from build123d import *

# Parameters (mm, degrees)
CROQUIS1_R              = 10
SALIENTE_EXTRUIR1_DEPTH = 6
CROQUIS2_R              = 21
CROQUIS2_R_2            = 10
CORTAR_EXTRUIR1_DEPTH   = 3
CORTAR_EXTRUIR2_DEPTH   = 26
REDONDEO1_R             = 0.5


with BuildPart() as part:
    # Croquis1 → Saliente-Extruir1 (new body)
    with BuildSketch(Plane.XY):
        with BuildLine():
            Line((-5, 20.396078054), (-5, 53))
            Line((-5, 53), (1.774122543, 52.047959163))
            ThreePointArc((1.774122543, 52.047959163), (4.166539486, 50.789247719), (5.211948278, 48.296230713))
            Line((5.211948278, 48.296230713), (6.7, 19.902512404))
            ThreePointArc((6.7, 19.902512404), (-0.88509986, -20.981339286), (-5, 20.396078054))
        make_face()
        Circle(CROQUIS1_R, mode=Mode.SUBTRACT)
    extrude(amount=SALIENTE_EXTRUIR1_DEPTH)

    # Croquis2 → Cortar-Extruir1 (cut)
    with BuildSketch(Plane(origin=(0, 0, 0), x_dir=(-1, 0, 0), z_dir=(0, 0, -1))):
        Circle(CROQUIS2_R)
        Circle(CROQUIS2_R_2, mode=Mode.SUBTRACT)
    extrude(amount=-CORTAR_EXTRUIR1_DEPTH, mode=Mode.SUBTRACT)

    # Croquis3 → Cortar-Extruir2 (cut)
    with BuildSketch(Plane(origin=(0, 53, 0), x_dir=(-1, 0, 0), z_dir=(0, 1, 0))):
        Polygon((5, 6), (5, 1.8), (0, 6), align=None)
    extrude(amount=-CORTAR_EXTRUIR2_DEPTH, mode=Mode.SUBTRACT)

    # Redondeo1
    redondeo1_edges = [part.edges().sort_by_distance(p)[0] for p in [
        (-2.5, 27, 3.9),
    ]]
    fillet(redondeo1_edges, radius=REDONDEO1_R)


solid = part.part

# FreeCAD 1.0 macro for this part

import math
import FreeCAD as App
import Part
import Sketcher

V = App.Vector
Q = App.Units.Quantity


def edges_at(feature, points):
    """Names of the edges that pass closest to the given points."""
    edges = feature.Shape.Edges
    near = lambda p: min(range(len(edges)), key=lambda i: edges[i].distToShape(Part.Vertex(*p))[0])
    return sorted({f"Edge{near(p) + 1}" for p in points})

doc = App.newDocument("Part")
params = doc.addObject("Spreadsheet::Sheet", "Params")
for row, (alias, value) in enumerate([
    ("sketch1_diameter", "20 mm"),
    ("sketch1_radius", "21 mm"),
    ("sketch1_radius2", "4 mm"),
    ("pad1_length", "6 mm"),
    ("sketch2_diameter", "42 mm"),
    ("sketch2_diameter2", "20 mm"),
    ("pocket1_length", "3 mm"),
    ("sketch3_width", "5 mm"),
    ("sketch3_height", "4.2 mm"),
    ("pocket2_length", "26 mm"),
    ("fillet_radius", "0.5 mm"),
], start=1):
    params.set(f"A{row}", alias)
    params.set(f"B{row}", "=" + value)
    params.setAlias(f"B{row}", alias)

body = doc.addObject("PartDesign::Body", "Body")

sketch1 = body.newObject("Sketcher::SketchObject", "Sketch")
sketch1.AttachmentSupport = (doc.getObject("XY_Plane"), [""])
sketch1.MapMode = "FlatFace"
sketch1.addGeometry([
    Part.LineSegment(V(-5, 53, 0), V(-5, 20.4, 0)),
    Part.ArcOfCircle(Part.Circle(V(0, 0, 0), V(0, 0, 1), 21), math.radians(104), math.radians(431)),
    Part.LineSegment(V(6.7, 19.9, 0), V(5.2, 48.3, 0)),
    Part.ArcOfCircle(Part.Circle(V(1.2, 48.1, 0), V(0, 0, 1), 4), math.radians(3), math.radians(82)),
    Part.LineSegment(V(1.8, 52, 0), V(-5, 53, 0)),
    Part.Circle(V(0, 0, 0), V(0, 0, 1), 10),
], False)
sketch1.addConstraint([
    Sketcher.Constraint("Coincident", 0, 2, 1, 1),
    Sketcher.Constraint("Coincident", 1, 2, 2, 1),
    Sketcher.Constraint("Tangent", 2, 2, 3, 1),
    Sketcher.Constraint("Tangent", 3, 2, 4, 1),
    Sketcher.Constraint("Coincident", 4, 2, 0, 1),
    Sketcher.Constraint("Vertical", 0),
    Sketcher.Constraint("Coincident", 1, 3, -1, 1),
    Sketcher.Constraint("Coincident", 5, 3, -1, 1),
    Sketcher.Constraint("Diameter", 5, Q("20 mm")),
    Sketcher.Constraint("Radius", 1, Q("21 mm")),
    Sketcher.Constraint("Radius", 3, Q("4 mm")),
    Sketcher.Constraint("Angle", 2, Q("93 deg")),
    Sketcher.Constraint("Angle", 4, Q("172 deg")),
    Sketcher.Constraint("DistanceX", 0, 2, -1, 1, Q("5 mm")),
    Sketcher.Constraint("DistanceY", -1, 1, 4, 2, Q("53 mm")),
    Sketcher.Constraint("DistanceX", -1, 1, 1, 2, Q("6.7 mm")),
])
sketch1.setExpression("Constraints[8]", "Params.sketch1_diameter")
sketch1.setExpression("Constraints[9]", "Params.sketch1_radius")
sketch1.setExpression("Constraints[10]", "Params.sketch1_radius2")
pad1 = body.newObject("PartDesign::Pad", "Pad")
pad1.Profile = sketch1
pad1.setExpression("Length", "Params.pad1_length")

sketch2 = body.newObject("Sketcher::SketchObject", "Sketch001")
sketch2.AttachmentSupport = (doc.getObject("XY_Plane"), [""])
sketch2.MapMode = "FlatFace"
sketch2.addGeometry([
    Part.Circle(V(0, 0, 0), V(0, 0, 1), 21),
    Part.Circle(V(0, 0, 0), V(0, 0, 1), 10),
], False)
sketch2.addConstraint([
    Sketcher.Constraint("Coincident", 0, 3, -1, 1),
    Sketcher.Constraint("Coincident", 1, 3, -1, 1),
    Sketcher.Constraint("Diameter", 0, Q("42 mm")),
    Sketcher.Constraint("Diameter", 1, Q("20 mm")),
])
sketch2.setExpression("Constraints[2]", "Params.sketch2_diameter")
sketch2.setExpression("Constraints[3]", "Params.sketch2_diameter2")
pocket1 = body.newObject("PartDesign::Pocket", "Pocket")
pocket1.Profile = sketch2
pocket1.setExpression("Length", "Params.pocket1_length")
pocket1.Reversed = True

sketch3 = body.newObject("Sketcher::SketchObject", "Sketch002")
sketch3.AttachmentSupport = (doc.getObject("XZ_Plane"), [""])
sketch3.MapMode = "FlatFace"
sketch3.AttachmentOffset = App.Placement(V(0, 0, -53), App.Rotation())
sketch3.addGeometry([
    Part.LineSegment(V(-5, 1.8, 0), V(-5, 6, 0)),
    Part.LineSegment(V(-5, 6, 0), V(0, 6, 0)),
    Part.LineSegment(V(0, 6, 0), V(-5, 1.8, 0)),
], False)
sketch3.addConstraint([
    Sketcher.Constraint("Coincident", 0, 2, 1, 1),
    Sketcher.Constraint("Coincident", 1, 2, 2, 1),
    Sketcher.Constraint("Coincident", 2, 2, 0, 1),
    Sketcher.Constraint("Vertical", 0),
    Sketcher.Constraint("Horizontal", 1),
    Sketcher.Constraint("PointOnObject", 1, 2, -2),
    Sketcher.Constraint("DistanceX", 1, 1, 1, 2, Q("5 mm")),
    Sketcher.Constraint("DistanceY", 0, 1, 0, 2, Q("4.2 mm")),
    Sketcher.Constraint("DistanceY", -1, 1, 0, 2, Q("6 mm")),
])
sketch3.setExpression("Constraints[6]", "Params.sketch3_width")
sketch3.setExpression("Constraints[7]", "Params.sketch3_height")
pocket2 = body.newObject("PartDesign::Pocket", "Pocket001")
pocket2.Profile = sketch3
pocket2.setExpression("Length", "Params.pocket2_length")
pocket2.Reversed = True
doc.recompute()

fillet = body.newObject("PartDesign::Fillet", "Fillet")
fillet.Base = (pocket2, edges_at(pocket2, [(-2.5, 27, 3.9)]))
fillet.setExpression("Radius", "Params.fillet_radius")

doc.recompute()
